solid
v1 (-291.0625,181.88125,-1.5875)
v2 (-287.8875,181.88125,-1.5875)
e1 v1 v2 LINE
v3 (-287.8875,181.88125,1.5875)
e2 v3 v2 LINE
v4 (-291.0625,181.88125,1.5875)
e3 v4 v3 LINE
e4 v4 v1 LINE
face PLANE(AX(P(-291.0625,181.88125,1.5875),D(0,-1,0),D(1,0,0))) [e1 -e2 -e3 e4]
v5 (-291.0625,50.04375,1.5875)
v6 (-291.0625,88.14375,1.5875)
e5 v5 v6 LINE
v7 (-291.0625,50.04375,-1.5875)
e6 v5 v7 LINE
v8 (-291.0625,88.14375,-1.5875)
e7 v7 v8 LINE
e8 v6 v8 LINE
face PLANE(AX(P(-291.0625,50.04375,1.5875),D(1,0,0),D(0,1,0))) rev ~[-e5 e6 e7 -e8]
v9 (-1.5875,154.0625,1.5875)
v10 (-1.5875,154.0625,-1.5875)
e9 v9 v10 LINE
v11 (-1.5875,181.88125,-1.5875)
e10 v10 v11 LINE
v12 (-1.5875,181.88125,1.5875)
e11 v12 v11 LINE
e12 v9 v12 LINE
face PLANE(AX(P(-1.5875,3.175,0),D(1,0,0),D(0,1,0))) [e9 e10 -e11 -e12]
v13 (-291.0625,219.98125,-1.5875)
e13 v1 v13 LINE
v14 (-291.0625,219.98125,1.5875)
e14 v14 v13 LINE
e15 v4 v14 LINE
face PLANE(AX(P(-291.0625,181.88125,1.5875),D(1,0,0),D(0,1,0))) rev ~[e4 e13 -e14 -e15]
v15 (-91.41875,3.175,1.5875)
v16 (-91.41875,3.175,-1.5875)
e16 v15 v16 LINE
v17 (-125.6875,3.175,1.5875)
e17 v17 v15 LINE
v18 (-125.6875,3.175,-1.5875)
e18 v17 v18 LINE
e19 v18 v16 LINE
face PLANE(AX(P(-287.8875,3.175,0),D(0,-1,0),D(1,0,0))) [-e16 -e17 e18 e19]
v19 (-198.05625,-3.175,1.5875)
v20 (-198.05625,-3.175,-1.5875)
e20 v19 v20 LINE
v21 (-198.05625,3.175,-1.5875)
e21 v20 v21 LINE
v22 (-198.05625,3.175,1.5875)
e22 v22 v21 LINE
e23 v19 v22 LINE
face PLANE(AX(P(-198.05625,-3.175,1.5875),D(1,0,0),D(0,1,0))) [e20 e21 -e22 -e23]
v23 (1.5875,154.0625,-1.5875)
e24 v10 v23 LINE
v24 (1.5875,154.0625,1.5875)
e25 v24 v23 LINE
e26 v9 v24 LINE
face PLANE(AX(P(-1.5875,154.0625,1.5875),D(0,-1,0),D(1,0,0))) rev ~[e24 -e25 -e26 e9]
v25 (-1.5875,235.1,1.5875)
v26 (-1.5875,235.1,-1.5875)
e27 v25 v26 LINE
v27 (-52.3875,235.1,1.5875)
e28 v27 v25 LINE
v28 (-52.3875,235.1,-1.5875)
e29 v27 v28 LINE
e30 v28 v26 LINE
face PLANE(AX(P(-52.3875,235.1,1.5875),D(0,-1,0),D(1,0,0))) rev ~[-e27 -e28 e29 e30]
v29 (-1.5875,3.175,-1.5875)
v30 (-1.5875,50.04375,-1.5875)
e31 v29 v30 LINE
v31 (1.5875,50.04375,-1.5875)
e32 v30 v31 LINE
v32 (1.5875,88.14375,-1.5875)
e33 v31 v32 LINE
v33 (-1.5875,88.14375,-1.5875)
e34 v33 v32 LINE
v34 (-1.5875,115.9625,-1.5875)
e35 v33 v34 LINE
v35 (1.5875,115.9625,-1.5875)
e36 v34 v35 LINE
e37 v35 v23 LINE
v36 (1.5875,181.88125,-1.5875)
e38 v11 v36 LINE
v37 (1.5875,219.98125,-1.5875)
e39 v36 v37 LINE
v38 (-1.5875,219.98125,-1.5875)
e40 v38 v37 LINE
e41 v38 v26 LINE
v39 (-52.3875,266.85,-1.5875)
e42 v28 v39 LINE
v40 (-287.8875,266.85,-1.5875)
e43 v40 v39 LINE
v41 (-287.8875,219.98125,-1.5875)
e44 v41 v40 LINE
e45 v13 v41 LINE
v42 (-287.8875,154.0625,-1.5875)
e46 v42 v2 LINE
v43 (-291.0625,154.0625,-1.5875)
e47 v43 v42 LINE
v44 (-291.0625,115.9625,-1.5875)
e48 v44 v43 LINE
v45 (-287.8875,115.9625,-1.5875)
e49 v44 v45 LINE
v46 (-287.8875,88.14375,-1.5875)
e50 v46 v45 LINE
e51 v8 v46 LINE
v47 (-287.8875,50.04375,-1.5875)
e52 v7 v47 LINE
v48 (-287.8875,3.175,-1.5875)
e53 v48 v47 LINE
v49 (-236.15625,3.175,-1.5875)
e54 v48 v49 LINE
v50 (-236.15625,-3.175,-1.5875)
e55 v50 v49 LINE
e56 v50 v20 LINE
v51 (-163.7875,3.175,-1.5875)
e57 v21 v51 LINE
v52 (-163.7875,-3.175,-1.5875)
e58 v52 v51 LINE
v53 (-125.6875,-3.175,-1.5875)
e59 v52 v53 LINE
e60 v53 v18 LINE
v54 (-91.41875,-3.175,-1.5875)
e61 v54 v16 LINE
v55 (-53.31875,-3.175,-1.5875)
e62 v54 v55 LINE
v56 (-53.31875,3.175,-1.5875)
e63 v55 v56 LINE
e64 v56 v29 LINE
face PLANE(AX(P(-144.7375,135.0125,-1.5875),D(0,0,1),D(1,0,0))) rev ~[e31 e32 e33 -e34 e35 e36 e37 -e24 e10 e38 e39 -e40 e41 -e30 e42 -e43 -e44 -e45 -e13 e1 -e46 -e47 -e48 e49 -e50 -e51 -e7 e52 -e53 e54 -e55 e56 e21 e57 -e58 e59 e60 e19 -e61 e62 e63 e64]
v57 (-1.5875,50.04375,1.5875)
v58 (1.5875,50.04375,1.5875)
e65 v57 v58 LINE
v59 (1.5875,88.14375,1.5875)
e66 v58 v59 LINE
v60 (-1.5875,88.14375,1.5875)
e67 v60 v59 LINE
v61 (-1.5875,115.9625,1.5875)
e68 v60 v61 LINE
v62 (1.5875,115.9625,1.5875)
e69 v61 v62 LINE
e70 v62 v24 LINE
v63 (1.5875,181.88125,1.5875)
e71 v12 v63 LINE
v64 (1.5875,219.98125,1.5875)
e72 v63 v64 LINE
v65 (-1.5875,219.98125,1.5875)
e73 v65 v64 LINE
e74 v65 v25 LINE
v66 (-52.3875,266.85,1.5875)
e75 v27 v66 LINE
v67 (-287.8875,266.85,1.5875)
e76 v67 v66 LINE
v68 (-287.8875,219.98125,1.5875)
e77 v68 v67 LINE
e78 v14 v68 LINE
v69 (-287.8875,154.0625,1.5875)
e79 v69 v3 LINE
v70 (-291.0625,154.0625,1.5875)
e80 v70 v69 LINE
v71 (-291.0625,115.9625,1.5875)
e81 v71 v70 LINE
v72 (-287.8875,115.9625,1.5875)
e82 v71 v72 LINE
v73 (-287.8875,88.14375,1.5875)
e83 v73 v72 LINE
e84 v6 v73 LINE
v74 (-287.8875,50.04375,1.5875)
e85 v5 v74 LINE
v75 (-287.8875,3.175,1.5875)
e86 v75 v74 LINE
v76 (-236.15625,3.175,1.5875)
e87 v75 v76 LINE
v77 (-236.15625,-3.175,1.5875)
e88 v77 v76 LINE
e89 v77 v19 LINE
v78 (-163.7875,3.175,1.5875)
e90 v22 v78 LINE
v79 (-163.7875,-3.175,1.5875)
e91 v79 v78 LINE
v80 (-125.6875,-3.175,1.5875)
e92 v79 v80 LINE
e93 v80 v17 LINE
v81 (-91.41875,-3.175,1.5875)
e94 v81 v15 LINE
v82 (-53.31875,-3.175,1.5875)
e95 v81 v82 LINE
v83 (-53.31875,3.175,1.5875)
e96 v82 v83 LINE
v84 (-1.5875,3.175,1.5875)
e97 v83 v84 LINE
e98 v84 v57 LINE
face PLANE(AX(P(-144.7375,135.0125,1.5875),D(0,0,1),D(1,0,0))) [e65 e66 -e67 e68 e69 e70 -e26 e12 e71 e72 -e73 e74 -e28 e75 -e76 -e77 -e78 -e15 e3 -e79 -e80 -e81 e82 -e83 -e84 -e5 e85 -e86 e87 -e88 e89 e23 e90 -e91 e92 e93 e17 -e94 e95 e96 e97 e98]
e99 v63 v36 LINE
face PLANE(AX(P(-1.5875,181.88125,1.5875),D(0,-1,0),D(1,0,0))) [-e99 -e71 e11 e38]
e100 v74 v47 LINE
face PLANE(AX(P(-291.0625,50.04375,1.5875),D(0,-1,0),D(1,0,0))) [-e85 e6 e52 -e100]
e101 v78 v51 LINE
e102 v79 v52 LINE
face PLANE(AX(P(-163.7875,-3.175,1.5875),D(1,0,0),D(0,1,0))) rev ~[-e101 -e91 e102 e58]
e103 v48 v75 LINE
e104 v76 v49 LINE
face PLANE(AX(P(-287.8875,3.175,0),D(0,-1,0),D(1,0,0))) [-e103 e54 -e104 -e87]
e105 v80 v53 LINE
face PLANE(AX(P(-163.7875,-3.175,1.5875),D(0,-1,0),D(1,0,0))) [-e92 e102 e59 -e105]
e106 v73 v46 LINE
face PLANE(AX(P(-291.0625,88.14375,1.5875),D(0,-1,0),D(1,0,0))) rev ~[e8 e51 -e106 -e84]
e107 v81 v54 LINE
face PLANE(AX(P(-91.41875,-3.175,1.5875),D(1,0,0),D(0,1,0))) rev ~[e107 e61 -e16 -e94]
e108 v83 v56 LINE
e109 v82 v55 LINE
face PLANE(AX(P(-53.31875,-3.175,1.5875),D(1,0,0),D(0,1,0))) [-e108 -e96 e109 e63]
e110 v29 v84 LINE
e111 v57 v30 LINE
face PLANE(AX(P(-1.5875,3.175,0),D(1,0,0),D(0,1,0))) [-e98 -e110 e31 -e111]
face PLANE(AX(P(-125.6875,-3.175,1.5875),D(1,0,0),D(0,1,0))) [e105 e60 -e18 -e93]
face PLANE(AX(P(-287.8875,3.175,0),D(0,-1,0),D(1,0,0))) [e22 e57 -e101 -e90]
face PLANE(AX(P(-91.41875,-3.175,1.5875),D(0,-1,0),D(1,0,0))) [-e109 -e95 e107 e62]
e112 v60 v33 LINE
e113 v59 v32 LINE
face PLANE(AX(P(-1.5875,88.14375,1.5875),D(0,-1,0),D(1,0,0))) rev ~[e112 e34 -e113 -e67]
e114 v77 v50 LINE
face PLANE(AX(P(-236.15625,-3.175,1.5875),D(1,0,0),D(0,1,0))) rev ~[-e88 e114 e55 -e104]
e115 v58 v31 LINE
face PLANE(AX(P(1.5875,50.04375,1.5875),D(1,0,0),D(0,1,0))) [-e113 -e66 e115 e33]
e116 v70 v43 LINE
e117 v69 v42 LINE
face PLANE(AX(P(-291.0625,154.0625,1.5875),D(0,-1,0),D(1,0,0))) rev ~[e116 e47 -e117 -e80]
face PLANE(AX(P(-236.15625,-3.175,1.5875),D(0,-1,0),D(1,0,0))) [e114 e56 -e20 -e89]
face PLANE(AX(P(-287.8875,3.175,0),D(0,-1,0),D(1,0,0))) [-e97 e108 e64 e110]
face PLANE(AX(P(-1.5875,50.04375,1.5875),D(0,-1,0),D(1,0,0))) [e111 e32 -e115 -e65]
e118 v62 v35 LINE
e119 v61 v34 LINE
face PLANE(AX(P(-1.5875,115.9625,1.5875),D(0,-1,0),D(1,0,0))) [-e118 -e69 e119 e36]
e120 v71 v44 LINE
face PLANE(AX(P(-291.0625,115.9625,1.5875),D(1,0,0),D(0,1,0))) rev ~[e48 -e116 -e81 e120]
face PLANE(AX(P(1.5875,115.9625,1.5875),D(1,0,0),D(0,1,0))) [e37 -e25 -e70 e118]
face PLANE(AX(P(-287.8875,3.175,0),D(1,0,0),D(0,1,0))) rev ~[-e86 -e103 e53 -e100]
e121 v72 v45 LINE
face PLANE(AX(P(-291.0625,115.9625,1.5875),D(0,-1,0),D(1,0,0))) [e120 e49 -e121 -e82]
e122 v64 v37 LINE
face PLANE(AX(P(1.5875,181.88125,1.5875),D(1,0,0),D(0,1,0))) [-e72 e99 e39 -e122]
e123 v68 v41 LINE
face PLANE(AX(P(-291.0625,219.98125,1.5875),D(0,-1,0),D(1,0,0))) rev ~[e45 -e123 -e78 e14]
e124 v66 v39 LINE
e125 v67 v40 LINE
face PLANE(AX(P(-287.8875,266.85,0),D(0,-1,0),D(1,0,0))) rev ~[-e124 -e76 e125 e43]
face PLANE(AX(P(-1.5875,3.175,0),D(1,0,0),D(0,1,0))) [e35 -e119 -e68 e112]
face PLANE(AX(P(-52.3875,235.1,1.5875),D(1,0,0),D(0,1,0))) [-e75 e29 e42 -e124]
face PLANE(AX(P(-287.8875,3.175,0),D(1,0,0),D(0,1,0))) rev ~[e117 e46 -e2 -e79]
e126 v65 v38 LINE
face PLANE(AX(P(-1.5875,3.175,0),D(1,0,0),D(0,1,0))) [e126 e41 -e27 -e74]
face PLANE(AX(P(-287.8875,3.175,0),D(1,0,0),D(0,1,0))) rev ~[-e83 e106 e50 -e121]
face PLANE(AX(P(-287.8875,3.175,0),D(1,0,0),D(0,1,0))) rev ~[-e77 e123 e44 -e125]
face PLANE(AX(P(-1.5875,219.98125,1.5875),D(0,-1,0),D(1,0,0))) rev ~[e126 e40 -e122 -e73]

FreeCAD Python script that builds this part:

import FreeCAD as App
import Part
import Sketcher
from FreeCAD import Vector
Q = App.Units.Quantity

doc = App.newDocument("Part")
params = doc.addObject("Spreadsheet::Sheet", "Params")
for row, (alias, value) in enumerate([
    ("pad1_length", "0.125 in"),
    ("sketch2_width", "1.5 in"),
    ("sketch2_height", "0.25 in"),
    ("sketch2_width2", "0.125 in"),
    ("pad2_length", "0.125 in"),
    ("sketch3_width", "2 in"),
    ("sketch3_height", "1.25 in"),
    ("pocket1_length", "0.125 in"),
], start=1):
    params.set(f"A{row}", alias)
    params.set(f"B{row}", "=" + value)
    params.setAlias(f"B{row}", alias)

body = doc.addObject("PartDesign::Body", "Body")

sketch1 = body.newObject("Sketcher::SketchObject", "Sketch")
sketch1.AttachmentSupport = (doc.getObject("XY_Plane"), [""])
sketch1.MapMode = "FlatFace"
sketch1.addGeometry(Part.LineSegment(Vector(-288, 267, 0), Vector(-288, 3, 0)), False)
sketch1.addGeometry(Part.LineSegment(Vector(-288, 3, 0), Vector(-2, 3, 0)), False)
sketch1.addGeometry(Part.LineSegment(Vector(-2, 3, 0), Vector(-2, 267, 0)), False)
sketch1.addGeometry(Part.LineSegment(Vector(-2, 267, 0), Vector(-288, 267, 0)), False)
sketch1.addConstraint(Sketcher.Constraint("Coincident", 0, 2, 1, 1))
sketch1.addConstraint(Sketcher.Constraint("Coincident", 1, 2, 2, 1))
sketch1.addConstraint(Sketcher.Constraint("Coincident", 2, 2, 3, 1))
sketch1.addConstraint(Sketcher.Constraint("Coincident", 3, 2, 0, 1))
sketch1.addConstraint(Sketcher.Constraint("Vertical", 0))
sketch1.addConstraint(Sketcher.Constraint("Horizontal", 1))
sketch1.addConstraint(Sketcher.Constraint("Vertical", 2))
sketch1.addConstraint(Sketcher.Constraint("Horizontal", 3))
sketch1.addConstraint(Sketcher.Constraint("DistanceY", -1, 1, 0, 2, Q("0.125 in")))
sketch1.addConstraint(Sketcher.Constraint("DistanceX", 1, 2, -1, 1, Q("0.0625 in")))
sketch1.addConstraint(Sketcher.Constraint("DistanceX", 1, 1, 1, 2, Q("286.3 mm")))
sketch1.addConstraint(Sketcher.Constraint("DistanceY", 0, 2, 0, 1, Q("263.675 mm")))
pad1 = body.newObject("PartDesign::Pad", "Pad")
pad1.Profile = sketch1
pad1.setExpression("Length", "Params.pad1_length")
pad1.Midplane = True

sketch2 = body.newObject("Sketcher::SketchObject", "Sketch001")
sketch2.AttachmentSupport = (doc.getObject("XY_Plane"), [""])
sketch2.MapMode = "FlatFace"
sketch2.AttachmentOffset = App.Placement(Vector(0, 0, 0.0625 * 25.4), App.Rotation())
sketch2.addGeometry(Part.LineSegment(Vector(-291.1, 220, 0), Vector(-291.1, 181.9, 0)), False)
sketch2.addGeometry(Part.LineSegment(Vector(-291.1, 181.9, 0), Vector(-287.9, 181.9, 0)), False)
sketch2.addGeometry(Part.LineSegment(Vector(-287.9, 181.9, 0), Vector(-287.9, 220, 0)), False)
sketch2.addGeometry(Part.LineSegment(Vector(-287.9, 220, 0), Vector(-291.1, 220, 0)), False)
sketch2.addGeometry(Part.LineSegment(Vector(-291.1, 154.1, 0), Vector(-291.1, 116, 0)), False)
sketch2.addGeometry(Part.LineSegment(Vector(-291.1, 116, 0), Vector(-287.9, 116, 0)), False)
sketch2.addGeometry(Part.LineSegment(Vector(-287.9, 116, 0), Vector(-287.9, 154.1, 0)), False)
sketch2.addGeometry(Part.LineSegment(Vector(-287.9, 154.1, 0), Vector(-291.1, 154.1, 0)), False)
sketch2.addGeometry(Part.LineSegment(Vector(-291.1, 88.1, 0), Vector(-291.1, 50, 0)), False)
sketch2.addGeometry(Part.LineSegment(Vector(-291.1, 50, 0), Vector(-287.9, 50, 0)), False)
sketch2.addGeometry(Part.LineSegment(Vector(-287.9, 50, 0), Vector(-287.9, 88.1, 0)), False)
sketch2.addGeometry(Part.LineSegment(Vector(-287.9, 88.1, 0), Vector(-291.1, 88.1, 0)), False)
sketch2.addGeometry(Part.LineSegment(Vector(-1.6, 220, 0), Vector(-1.6, 181.9, 0)), False)
sketch2.addGeometry(Part.LineSegment(Vector(-1.6, 181.9, 0), Vector(1.6, 181.9, 0)), False)
sketch2.addGeometry(Part.LineSegment(Vector(1.6, 181.9, 0), Vector(1.6, 220, 0)), False)
sketch2.addGeometry(Part.LineSegment(Vector(1.6, 220, 0), Vector(-1.6, 220, 0)), False)
sketch2.addGeometry(Part.LineSegment(Vector(-1.6, 154.1, 0), Vector(-1.6, 116, 0)), False)
sketch2.addGeometry(Part.LineSegment(Vector(-1.6, 116, 0), Vector(1.6, 116, 0)), False)
sketch2.addGeometry(Part.LineSegment(Vector(1.6, 116, 0), Vector(1.6, 154.1, 0)), False)
sketch2.addGeometry(Part.LineSegment(Vector(1.6, 154.1, 0), Vector(-1.6, 154.1, 0)), False)
sketch2.addGeometry(Part.LineSegment(Vector(-1.6, 88.1, 0), Vector(-1.6, 50, 0)), False)
sketch2.addGeometry(Part.LineSegment(Vector(-1.6, 50, 0), Vector(1.6, 50, 0)), False)
sketch2.addGeometry(Part.LineSegment(Vector(1.6, 50, 0), Vector(1.6, 88.1, 0)), False)
sketch2.addGeometry(Part.LineSegment(Vector(1.6, 88.1, 0), Vector(-1.6, 88.1, 0)), False)
sketch2.addGeometry(Part.LineSegment(Vector(-236.2, 3.2, 0), Vector(-236.2, -3.2, 0)), False)
sketch2.addGeometry(Part.LineSegment(Vector(-236.2, -3.2, 0), Vector(-198.1, -3.2, 0)), False)
sketch2.addGeometry(Part.LineSegment(Vector(-198.1, -3.2, 0), Vector(-198.1, 3.2, 0)), False)
sketch2.addGeometry(Part.LineSegment(Vector(-198.1, 3.2, 0), Vector(-236.2, 3.2, 0)), False)
sketch2.addGeometry(Part.LineSegment(Vector(-163.8, 3.2, 0), Vector(-163.8, -3.2, 0)), False)
sketch2.addGeometry(Part.LineSegment(Vector(-163.8, -3.2, 0), Vector(-125.7, -3.2, 0)), False)
sketch2.addGeometry(Part.LineSegment(Vector(-125.7, -3.2, 0), Vector(-125.7, 3.2, 0)), False)
sketch2.addGeometry(Part.LineSegment(Vector(-125.7, 3.2, 0), Vector(-163.8, 3.2, 0)), False)
sketch2.addGeometry(Part.LineSegment(Vector(-91.4, 3.2, 0), Vector(-91.4, -3.2, 0)), False)
sketch2.addGeometry(Part.LineSegment(Vector(-91.4, -3.2, 0), Vector(-53.3, -3.2, 0)), False)
sketch2.addGeometry(Part.LineSegment(Vector(-53.3, -3.2, 0), Vector(-53.3, 3.2, 0)), False)
sketch2.addGeometry(Part.LineSegment(Vector(-53.3, 3.2, 0), Vector(-91.4, 3.2, 0)), False)
sketch2.addConstraint(Sketcher.Constraint("Coincident", 0, 2, 1, 1))
sketch2.addConstraint(Sketcher.Constraint("Coincident", 1, 2, 2, 1))
sketch2.addConstraint(Sketcher.Constraint("Coincident", 2, 2, 3, 1))
sketch2.addConstraint(Sketcher.Constraint("Coincident", 3, 2, 0, 1))
sketch2.addConstraint(Sketcher.Constraint("Coincident", 4, 2, 5, 1))
sketch2.addConstraint(Sketcher.Constraint("Coincident", 5, 2, 6, 1))
sketch2.addConstraint(Sketcher.Constraint("Coincident", 6, 2, 7, 1))
sketch2.addConstraint(Sketcher.Constraint("Coincident", 7, 2, 4, 1))
sketch2.addConstraint(Sketcher.Constraint("Coincident", 8, 2, 9, 1))
sketch2.addConstraint(Sketcher.Constraint("Coincident", 9, 2, 10, 1))
sketch2.addConstraint(Sketcher.Constraint("Coincident", 10, 2, 11, 1))
sketch2.addConstraint(Sketcher.Constraint("Coincident", 11, 2, 8, 1))
sketch2.addConstraint(Sketcher.Constraint("Coincident", 12, 2, 13, 1))
sketch2.addConstraint(Sketcher.Constraint("Coincident", 13, 2, 14, 1))
sketch2.addConstraint(Sketcher.Constraint("Coincident", 14, 2, 15, 1))
sketch2.addConstraint(Sketcher.Constraint("Coincident", 15, 2, 12, 1))
sketch2.addConstraint(Sketcher.Constraint("Coincident", 16, 2, 17, 1))
sketch2.addConstraint(Sketcher.Constraint("Coincident", 17, 2, 18, 1))
sketch2.addConstraint(Sketcher.Constraint("Coincident", 18, 2, 19, 1))
sketch2.addConstraint(Sketcher.Constraint("Coincident", 19, 2, 16, 1))
sketch2.addConstraint(Sketcher.Constraint("Coincident", 20, 2, 21, 1))
sketch2.addConstraint(Sketcher.Constraint("Coincident", 21, 2, 22, 1))
sketch2.addConstraint(Sketcher.Constraint("Coincident", 22, 2, 23, 1))
sketch2.addConstraint(Sketcher.Constraint("Coincident", 23, 2, 20, 1))
sketch2.addConstraint(Sketcher.Constraint("Coincident", 24, 2, 25, 1))
sketch2.addConstraint(Sketcher.Constraint("Coincident", 25, 2, 26, 1))
sketch2.addConstraint(Sketcher.Constraint("Coincident", 26, 2, 27, 1))
sketch2.addConstraint(Sketcher.Constraint("Coincident", 27, 2, 24, 1))
sketch2.addConstraint(Sketcher.Constraint("Coincident", 28, 2, 29, 1))
sketch2.addConstraint(Sketcher.Constraint("Coincident", 29, 2, 30, 1))
sketch2.addConstraint(Sketcher.Constraint("Coincident", 30, 2, 31, 1))
sketch2.addConstraint(Sketcher.Constraint("Coincident", 31, 2, 28, 1))
sketch2.addConstraint(Sketcher.Constraint("Coincident", 32, 2, 33, 1))
sketch2.addConstraint(Sketcher.Constraint("Coincident", 33, 2, 34, 1))
sketch2.addConstraint(Sketcher.Constraint("Coincident", 34, 2, 35, 1))
sketch2.addConstraint(Sketcher.Constraint("Coincident", 35, 2, 32, 1))
sketch2.addConstraint(Sketcher.Constraint("Vertical", 0))
sketch2.addConstraint(Sketcher.Constraint("Horizontal", 1))
sketch2.addConstraint(Sketcher.Constraint("Vertical", 2))
sketch2.addConstraint(Sketcher.Constraint("Horizontal", 3))
sketch2.addConstraint(Sketcher.Constraint("Vertical", 4))
sketch2.addConstraint(Sketcher.Constraint("Horizontal", 5))
sketch2.addConstraint(Sketcher.Constraint("Vertical", 6))
sketch2.addConstraint(Sketcher.Constraint("Horizontal", 7))
sketch2.addConstraint(Sketcher.Constraint("Vertical", 8))
sketch2.addConstraint(Sketcher.Constraint("Horizontal", 9))
sketch2.addConstraint(Sketcher.Constraint("Vertical", 10))
sketch2.addConstraint(Sketcher.Constraint("Horizontal", 11))
sketch2.addConstraint(Sketcher.Constraint("Vertical", 12))
sketch2.addConstraint(Sketcher.Constraint("Horizontal", 13))
sketch2.addConstraint(Sketcher.Constraint("Vertical", 14))
sketch2.addConstraint(Sketcher.Constraint("Horizontal", 15))
sketch2.addConstraint(Sketcher.Constraint("Vertical", 16))
sketch2.addConstraint(Sketcher.Constraint("Horizontal", 17))
sketch2.addConstraint(Sketcher.Constraint("Vertical", 18))
sketch2.addConstraint(Sketcher.Constraint("Horizontal", 19))
sketch2.addConstraint(Sketcher.Constraint("Vertical", 20))
sketch2.addConstraint(Sketcher.Constraint("Horizontal", 21))
sketch2.addConstraint(Sketcher.Constraint("Vertical", 22))
sketch2.addConstraint(Sketcher.Constraint("Horizontal", 23))
sketch2.addConstraint(Sketcher.Constraint("Vertical", 24))
sketch2.addConstraint(Sketcher.Constraint("Horizontal", 25))
sketch2.addConstraint(Sketcher.Constraint("Vertical", 26))
sketch2.addConstraint(Sketcher.Constraint("Horizontal", 27))
sketch2.addConstraint(Sketcher.Constraint("Vertical", 28))
sketch2.addConstraint(Sketcher.Constraint("Horizontal", 29))
sketch2.addConstraint(Sketcher.Constraint("Vertical", 30))
sketch2.addConstraint(Sketcher.Constraint("Horizontal", 31))
sketch2.addConstraint(Sketcher.Constraint("Vertical", 32))
sketch2.addConstraint(Sketcher.Constraint("Horizontal", 33))
sketch2.addConstraint(Sketcher.Constraint("Vertical", 34))
sketch2.addConstraint(Sketcher.Constraint("Horizontal", 35))
sketch2.addConstraint(Sketcher.Constraint("Horizontal", 1, 2, 12, 2))
sketch2.addConstraint(Sketcher.Constraint("Horizontal", 3, 2, 14, 2))
sketch2.addConstraint(Sketcher.Constraint("Horizontal", 5, 2, 16, 2))
sketch2.addConstraint(Sketcher.Constraint("Horizontal", 7, 2, 18, 2))
sketch2.addConstraint(Sketcher.Constraint("Horizontal", 9, 2, 20, 2))
sketch2.addConstraint(Sketcher.Constraint("Horizontal", 11, 2, 22, 2))
sketch2.addConstraint(Sketcher.Constraint("Horizontal", 25, 2, 28, 2))
sketch2.addConstraint(Sketcher.Constraint("Horizontal", 27, 2, 30, 2))
sketch2.addConstraint(Sketcher.Constraint("Horizontal", 29, 2, 32, 2))
sketch2.addConstraint(Sketcher.Constraint("Horizontal", 31, 2, 34, 2))
sketch2.addConstraint(Sketcher.Constraint("Vertical", 3, 2, 4, 2))
sketch2.addConstraint(Sketcher.Constraint("Vertical", 2, 2, 5, 2))
sketch2.addConstraint(Sketcher.Constraint("Vertical", 7, 2, 8, 2))
sketch2.addConstraint(Sketcher.Constraint("Vertical", 6, 2, 9, 2))
sketch2.addConstraint(Sketcher.Constraint("Vertical", 15, 2, 16, 2))
sketch2.addConstraint(Sketcher.Constraint("Vertical", 14, 2, 17, 2))
sketch2.addConstraint(Sketcher.Constraint("Vertical", 19, 2, 20, 2))
sketch2.addConstraint(Sketcher.Constraint("Vertical", 18, 2, 21, 2))
sketch2.addConstraint(Sketcher.Constraint("Equal", 11, 13))
sketch2.addConstraint(Sketcher.Constraint("Equal", 27, 29))
sketch2.addConstraint(Sketcher.Constraint("Equal", 31, 33))
sketch2.addConstraint(Sketcher.Constraint("Equal", 35, 0))
sketch2.addConstraint(Sketcher.Constraint("Equal", 2, 4))
sketch2.addConstraint(Sketcher.Constraint("Equal", 6, 8))
sketch2.addConstraint(Sketcher.Constraint("DistanceX", 25, 1, 25, 2, Q("1.5 in")))
sketch2.addConstraint(Sketcher.Constraint("DistanceY", 24, 2, 24, 1, Q("0.25 in")))
sketch2.addConstraint(Sketcher.Constraint("DistanceX", 1, 1, 1, 2, Q("0.125 in")))
sketch2.addConstraint(Sketcher.Constraint("DistanceX", 12, 2, -1, 1, Q("0.0625 in")))
sketch2.addConstraint(Sketcher.Constraint("DistanceY", 24, 2, -1, 1, Q("0.125 in")))
sketch2.addConstraint(Sketcher.Constraint("DistanceX", 0, 2, -1, 1, Q("291.0625 mm")))
sketch2.addConstraint(Sketcher.Constraint("DistanceY", -1, 1, 4, 2, Q("115.9625 mm")))
sketch2.addConstraint(Sketcher.Constraint("DistanceX", 28, 2, -1, 1, Q("163.7875 mm")))
sketch2.addConstraint(Sketcher.Constraint("DistanceY", 8, 2, 0, 2, Q("131.8375 mm")))
sketch2.addConstraint(Sketcher.Constraint("DistanceY", -1, 1, 0, 2, Q("181.88125 mm")))
sketch2.addConstraint(Sketcher.Constraint("DistanceX", 24, 2, -1, 1, Q("236.15625 mm")))
sketch2.addConstraint(Sketcher.Constraint("DistanceX", 32, 2, -1, 1, Q("91.41875 mm")))
sketch2.setExpression("Constraints[96]", "Params.sketch2_width")
sketch2.setExpression("Constraints[97]", "Params.sketch2_height")
sketch2.setExpression("Constraints[98]", "Params.sketch2_width2")
pad2 = body.newObject("PartDesign::Pad", "Pad001")
pad2.Profile = sketch2
pad2.setExpression("Length", "Params.pad2_length")
pad2.Reversed = True

sketch3 = body.newObject("Sketcher::SketchObject", "Sketch002")
sketch3.AttachmentSupport = (doc.getObject("XY_Plane"), [""])
sketch3.MapMode = "FlatFace"
sketch3.AttachmentOffset = App.Placement(Vector(0, 0, 0.0625 * 25.4), App.Rotation())
sketch3.addGeometry(Part.LineSegment(Vector(-52, 267, 0), Vector(-52, 235, 0)), False)
sketch3.addGeometry(Part.LineSegment(Vector(-52, 235, 0), Vector(-2, 235, 0)), False)
sketch3.addGeometry(Part.LineSegment(Vector(-2, 235, 0), Vector(-2, 267, 0)), False)
sketch3.addGeometry(Part.LineSegment(Vector(-2, 267, 0), Vector(-52, 267, 0)), False)
sketch3.addConstraint(Sketcher.Constraint("Coincident", 0, 2, 1, 1))
sketch3.addConstraint(Sketcher.Constraint("Coincident", 1, 2, 2, 1))
sketch3.addConstraint(Sketcher.Constraint("Coincident", 2, 2, 3, 1))
sketch3.addConstraint(Sketcher.Constraint("Coincident", 3, 2, 0, 1))
sketch3.addConstraint(Sketcher.Constraint("Vertical", 0))
sketch3.addConstraint(Sketcher.Constraint("Horizontal", 1))
sketch3.addConstraint(Sketcher.Constraint("Vertical", 2))
sketch3.addConstraint(Sketcher.Constraint("Horizontal", 3))
sketch3.addConstraint(Sketcher.Constraint("DistanceX", 1, 1, 1, 2, Q("2 in")))
sketch3.addConstraint(Sketcher.Constraint("DistanceY", 0, 2, 0, 1, Q("1.25 in")))
sketch3.addConstraint(Sketcher.Constraint("DistanceX", 0, 2, -1, 1, Q("2.0625 in")))
sketch3.addConstraint(Sketcher.Constraint("DistanceY", -1, 1, 0, 2, Q("235.1 mm")))
sketch3.setExpression("Constraints[8]", "Params.sketch3_width")
sketch3.setExpression("Constraints[9]", "Params.sketch3_height")
pocket1 = body.newObject("PartDesign::Pocket", "Pocket")
pocket1.Profile = sketch3
pocket1.setExpression("Length", "Params.pocket1_length")

doc.recompute()
